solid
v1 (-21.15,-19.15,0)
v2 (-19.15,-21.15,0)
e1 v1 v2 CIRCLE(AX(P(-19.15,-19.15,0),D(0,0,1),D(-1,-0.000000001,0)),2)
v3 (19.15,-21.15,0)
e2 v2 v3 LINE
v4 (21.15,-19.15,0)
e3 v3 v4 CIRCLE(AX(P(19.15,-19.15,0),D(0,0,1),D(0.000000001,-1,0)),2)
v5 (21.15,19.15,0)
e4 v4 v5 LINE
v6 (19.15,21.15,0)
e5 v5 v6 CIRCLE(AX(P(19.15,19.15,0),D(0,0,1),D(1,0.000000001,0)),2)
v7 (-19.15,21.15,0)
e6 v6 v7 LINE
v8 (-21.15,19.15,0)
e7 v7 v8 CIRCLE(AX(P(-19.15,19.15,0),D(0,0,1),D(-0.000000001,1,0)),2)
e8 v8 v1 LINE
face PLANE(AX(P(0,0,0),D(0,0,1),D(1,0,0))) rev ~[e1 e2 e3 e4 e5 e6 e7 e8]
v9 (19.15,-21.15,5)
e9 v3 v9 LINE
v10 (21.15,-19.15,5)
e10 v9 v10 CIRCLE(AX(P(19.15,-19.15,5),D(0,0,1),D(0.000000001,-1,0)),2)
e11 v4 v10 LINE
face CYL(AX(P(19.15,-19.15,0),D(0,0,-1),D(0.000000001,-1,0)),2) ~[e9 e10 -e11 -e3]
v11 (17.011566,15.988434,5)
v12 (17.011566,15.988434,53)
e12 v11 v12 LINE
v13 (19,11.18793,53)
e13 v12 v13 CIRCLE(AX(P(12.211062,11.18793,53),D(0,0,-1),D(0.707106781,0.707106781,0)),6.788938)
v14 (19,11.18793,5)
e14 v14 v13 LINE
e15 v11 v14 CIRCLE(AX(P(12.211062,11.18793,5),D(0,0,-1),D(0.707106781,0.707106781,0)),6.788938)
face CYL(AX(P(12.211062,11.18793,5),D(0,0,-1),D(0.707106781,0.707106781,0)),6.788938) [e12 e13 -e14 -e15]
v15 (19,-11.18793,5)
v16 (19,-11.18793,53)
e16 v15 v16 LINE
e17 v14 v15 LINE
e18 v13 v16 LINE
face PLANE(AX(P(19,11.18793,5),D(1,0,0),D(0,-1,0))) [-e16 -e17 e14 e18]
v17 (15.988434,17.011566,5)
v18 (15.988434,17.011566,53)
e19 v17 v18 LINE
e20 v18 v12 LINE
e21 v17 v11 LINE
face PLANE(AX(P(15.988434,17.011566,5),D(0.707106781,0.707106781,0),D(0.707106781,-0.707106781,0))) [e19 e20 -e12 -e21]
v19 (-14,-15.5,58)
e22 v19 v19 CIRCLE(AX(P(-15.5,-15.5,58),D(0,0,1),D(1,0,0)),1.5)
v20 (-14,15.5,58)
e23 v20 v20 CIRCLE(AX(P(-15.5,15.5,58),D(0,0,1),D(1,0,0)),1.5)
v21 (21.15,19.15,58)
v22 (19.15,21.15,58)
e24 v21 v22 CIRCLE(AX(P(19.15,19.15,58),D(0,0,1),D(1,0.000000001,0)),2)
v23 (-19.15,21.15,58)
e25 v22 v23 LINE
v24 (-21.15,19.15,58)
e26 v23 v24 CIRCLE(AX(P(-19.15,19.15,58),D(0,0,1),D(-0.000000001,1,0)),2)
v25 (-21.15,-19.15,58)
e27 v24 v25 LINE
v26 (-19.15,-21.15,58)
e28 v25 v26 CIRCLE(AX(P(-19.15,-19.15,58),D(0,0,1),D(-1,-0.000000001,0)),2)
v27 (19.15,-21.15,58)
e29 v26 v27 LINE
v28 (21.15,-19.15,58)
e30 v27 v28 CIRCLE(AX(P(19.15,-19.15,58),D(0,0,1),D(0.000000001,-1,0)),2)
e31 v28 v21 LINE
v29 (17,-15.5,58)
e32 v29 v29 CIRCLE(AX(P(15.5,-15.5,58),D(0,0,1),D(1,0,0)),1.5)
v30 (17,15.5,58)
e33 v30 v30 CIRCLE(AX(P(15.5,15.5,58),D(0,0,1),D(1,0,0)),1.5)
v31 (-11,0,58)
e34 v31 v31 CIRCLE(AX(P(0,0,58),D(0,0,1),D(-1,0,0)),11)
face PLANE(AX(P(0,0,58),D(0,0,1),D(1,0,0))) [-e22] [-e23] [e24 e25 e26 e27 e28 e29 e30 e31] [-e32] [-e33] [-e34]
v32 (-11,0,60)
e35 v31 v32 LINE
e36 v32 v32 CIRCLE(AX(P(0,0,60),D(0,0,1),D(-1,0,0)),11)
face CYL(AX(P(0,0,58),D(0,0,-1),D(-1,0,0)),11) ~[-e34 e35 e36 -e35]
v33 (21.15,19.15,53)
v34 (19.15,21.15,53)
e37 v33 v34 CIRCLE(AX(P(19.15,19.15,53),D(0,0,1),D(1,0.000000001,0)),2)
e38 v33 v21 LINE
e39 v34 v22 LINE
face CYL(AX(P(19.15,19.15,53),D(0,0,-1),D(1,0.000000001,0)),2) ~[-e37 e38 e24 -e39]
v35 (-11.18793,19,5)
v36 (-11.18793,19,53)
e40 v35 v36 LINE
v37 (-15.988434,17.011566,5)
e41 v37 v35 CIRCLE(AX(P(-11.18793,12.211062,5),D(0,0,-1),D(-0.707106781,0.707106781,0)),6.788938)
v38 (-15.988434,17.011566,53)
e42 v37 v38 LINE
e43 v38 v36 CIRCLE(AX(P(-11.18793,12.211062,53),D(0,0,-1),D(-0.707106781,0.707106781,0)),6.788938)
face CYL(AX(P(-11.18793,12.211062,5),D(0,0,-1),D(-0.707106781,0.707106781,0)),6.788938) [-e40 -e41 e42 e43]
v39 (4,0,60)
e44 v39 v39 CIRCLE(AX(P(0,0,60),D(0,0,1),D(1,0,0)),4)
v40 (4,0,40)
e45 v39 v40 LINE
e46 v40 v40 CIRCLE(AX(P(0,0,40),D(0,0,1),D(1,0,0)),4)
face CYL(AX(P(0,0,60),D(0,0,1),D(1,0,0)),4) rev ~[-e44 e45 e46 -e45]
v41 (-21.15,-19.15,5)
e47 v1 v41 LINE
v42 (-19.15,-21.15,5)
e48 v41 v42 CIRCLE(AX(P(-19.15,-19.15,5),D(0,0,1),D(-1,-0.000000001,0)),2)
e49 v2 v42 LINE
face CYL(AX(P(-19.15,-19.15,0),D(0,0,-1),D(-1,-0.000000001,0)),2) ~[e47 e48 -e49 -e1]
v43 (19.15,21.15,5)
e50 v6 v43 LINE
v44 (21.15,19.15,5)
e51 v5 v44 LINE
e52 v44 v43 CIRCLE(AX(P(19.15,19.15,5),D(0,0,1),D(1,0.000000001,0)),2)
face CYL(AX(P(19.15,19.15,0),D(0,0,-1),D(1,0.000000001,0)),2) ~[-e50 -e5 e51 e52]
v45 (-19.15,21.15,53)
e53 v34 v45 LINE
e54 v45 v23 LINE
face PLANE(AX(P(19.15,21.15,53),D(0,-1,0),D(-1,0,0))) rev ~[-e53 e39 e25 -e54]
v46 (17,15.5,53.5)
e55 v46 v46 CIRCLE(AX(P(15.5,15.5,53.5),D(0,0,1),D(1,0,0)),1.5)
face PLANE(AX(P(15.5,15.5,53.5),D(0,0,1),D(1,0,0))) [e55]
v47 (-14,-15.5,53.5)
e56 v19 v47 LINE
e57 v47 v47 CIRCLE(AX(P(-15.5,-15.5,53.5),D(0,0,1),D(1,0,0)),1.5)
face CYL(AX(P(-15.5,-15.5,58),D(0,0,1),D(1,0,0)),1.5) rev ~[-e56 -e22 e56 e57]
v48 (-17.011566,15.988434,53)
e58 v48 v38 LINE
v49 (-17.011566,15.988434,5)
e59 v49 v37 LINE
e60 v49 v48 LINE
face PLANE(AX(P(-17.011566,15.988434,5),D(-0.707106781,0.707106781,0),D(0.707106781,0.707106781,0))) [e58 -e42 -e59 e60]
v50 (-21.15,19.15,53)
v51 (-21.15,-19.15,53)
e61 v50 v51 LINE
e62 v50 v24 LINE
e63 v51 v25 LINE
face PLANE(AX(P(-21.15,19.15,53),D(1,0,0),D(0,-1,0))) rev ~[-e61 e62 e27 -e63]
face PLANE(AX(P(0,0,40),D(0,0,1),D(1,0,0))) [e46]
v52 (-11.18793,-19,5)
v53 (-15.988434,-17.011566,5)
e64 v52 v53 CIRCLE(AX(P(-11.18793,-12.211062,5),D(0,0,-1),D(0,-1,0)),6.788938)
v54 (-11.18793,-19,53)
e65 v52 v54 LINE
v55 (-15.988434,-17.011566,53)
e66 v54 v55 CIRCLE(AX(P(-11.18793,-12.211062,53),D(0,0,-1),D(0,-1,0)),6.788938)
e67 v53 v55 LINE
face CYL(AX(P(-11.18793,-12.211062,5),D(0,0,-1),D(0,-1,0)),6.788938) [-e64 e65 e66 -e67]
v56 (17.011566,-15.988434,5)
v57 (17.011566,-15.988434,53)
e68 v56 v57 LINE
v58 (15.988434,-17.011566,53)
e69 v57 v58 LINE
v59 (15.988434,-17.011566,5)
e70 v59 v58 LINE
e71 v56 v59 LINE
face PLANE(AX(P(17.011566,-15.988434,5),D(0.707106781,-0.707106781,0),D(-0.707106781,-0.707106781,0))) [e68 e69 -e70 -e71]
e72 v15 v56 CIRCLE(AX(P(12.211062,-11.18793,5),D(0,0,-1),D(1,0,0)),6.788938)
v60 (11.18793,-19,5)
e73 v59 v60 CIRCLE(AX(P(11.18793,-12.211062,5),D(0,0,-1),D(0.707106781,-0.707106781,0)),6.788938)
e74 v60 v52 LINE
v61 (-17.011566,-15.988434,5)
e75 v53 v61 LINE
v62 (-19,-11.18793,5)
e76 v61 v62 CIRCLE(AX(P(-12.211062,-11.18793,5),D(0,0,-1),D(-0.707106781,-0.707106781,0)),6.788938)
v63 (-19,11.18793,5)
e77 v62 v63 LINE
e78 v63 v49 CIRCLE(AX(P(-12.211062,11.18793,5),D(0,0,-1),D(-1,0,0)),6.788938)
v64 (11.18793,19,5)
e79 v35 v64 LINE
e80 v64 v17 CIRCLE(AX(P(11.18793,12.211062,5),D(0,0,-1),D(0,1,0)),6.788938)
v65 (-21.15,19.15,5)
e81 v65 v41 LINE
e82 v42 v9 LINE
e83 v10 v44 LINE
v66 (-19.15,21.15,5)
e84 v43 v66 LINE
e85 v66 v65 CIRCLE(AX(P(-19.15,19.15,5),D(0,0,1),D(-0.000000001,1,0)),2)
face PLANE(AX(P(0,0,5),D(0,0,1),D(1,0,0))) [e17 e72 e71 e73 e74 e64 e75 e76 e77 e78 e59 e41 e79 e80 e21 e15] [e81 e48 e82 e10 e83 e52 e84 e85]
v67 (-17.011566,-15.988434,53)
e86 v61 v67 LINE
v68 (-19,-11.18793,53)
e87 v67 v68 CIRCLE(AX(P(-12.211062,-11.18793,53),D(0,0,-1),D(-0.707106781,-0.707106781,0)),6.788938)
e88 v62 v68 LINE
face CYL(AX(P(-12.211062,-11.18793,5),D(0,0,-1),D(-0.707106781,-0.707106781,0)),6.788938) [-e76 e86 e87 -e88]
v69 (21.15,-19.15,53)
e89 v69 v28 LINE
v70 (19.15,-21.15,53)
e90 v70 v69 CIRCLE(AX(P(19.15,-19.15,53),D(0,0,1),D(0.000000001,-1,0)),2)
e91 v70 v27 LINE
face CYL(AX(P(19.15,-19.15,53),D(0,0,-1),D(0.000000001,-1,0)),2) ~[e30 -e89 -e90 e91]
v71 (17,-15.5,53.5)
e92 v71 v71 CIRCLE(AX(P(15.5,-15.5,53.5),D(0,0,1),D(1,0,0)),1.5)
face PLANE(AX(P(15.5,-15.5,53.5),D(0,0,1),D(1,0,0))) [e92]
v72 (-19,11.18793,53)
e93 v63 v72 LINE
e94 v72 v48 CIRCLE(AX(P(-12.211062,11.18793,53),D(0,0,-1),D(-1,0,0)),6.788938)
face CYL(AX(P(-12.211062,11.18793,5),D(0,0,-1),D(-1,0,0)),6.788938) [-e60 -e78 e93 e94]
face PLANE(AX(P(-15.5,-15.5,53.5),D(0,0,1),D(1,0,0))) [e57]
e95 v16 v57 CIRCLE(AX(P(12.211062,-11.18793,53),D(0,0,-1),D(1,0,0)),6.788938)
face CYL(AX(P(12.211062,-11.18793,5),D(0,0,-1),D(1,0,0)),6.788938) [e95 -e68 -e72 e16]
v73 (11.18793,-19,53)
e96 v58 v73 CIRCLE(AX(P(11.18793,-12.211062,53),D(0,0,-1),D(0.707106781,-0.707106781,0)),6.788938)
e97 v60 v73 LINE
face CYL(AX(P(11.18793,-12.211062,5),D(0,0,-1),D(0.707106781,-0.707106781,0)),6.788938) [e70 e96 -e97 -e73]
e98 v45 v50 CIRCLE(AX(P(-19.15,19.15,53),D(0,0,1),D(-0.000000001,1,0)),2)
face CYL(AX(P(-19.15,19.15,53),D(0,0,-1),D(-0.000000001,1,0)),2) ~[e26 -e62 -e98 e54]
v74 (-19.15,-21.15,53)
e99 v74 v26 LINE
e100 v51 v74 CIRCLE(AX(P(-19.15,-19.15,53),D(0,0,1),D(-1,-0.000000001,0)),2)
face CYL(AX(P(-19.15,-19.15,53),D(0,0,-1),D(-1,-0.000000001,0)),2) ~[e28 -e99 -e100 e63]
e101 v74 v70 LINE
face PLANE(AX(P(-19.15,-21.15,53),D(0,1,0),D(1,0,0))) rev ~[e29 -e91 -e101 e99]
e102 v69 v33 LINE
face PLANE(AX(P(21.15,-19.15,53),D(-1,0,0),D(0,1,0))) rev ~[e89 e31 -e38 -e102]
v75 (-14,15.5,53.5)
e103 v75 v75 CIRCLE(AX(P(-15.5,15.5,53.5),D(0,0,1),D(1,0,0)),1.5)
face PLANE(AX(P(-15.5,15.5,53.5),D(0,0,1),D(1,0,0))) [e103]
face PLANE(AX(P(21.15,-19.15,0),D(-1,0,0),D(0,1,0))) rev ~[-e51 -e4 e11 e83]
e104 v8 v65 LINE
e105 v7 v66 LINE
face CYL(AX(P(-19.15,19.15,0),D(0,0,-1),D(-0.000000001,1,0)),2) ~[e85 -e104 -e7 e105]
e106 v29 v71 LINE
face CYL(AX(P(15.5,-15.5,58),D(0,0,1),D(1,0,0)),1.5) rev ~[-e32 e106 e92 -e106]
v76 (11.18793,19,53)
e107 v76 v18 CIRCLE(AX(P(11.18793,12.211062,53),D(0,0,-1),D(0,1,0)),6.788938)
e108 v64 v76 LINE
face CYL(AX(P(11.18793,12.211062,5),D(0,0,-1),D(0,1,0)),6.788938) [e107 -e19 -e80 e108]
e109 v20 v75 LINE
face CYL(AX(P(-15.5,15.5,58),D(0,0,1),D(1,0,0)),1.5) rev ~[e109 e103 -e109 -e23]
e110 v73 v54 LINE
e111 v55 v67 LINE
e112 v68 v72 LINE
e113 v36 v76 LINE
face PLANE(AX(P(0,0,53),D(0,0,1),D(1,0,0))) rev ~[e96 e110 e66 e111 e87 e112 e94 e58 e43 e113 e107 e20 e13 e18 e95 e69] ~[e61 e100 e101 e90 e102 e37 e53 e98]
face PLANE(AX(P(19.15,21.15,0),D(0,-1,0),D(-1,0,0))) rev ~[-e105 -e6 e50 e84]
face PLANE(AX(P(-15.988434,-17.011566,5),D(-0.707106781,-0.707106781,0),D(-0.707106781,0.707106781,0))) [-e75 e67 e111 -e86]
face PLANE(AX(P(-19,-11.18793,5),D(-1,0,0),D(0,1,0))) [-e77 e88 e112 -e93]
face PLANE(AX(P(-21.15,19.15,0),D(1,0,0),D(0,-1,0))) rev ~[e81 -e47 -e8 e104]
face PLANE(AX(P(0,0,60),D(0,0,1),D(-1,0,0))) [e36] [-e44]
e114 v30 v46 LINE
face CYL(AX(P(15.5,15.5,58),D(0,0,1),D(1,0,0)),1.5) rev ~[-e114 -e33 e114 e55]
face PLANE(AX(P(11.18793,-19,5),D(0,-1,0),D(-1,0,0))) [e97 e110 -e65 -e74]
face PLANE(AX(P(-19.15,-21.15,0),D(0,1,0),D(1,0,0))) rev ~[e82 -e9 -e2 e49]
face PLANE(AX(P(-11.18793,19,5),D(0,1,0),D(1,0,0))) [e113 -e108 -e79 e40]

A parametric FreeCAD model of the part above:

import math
import FreeCAD as App
import Part
import Sketcher
from FreeCAD import Vector
Q = App.Units.Quantity

doc = App.newDocument("Part")
body = doc.addObject("PartDesign::Body", "Body")

sketch1 = body.newObject("Sketcher::SketchObject", "Sketch")
sketch1.AttachmentSupport = (doc.getObject("XY_Plane"), [""])
sketch1.MapMode = "FlatFace"
sketch1.addGeometry([
    Part.LineSegment(Vector(-19.1, -21.1, 0), Vector(19.1, -21.1, 0)),
    Part.ArcOfCircle(Part.Circle(Vector(19.1, -19.1, 0), Vector(0, 0, 1), 2), math.radians(-90), math.radians(0)),
    Part.LineSegment(Vector(21.1, -19.1, 0), Vector(21.1, 19.1, 0)),
    Part.ArcOfCircle(Part.Circle(Vector(19.1, 19.1, 0), Vector(0, 0, 1), 2), math.radians(0), math.radians(90)),
    Part.LineSegment(Vector(19.1, 21.1, 0), Vector(-19.1, 21.1, 0)),
    Part.ArcOfCircle(Part.Circle(Vector(-19.1, 19.1, 0), Vector(0, 0, 1), 2), math.radians(90), math.radians(180)),
    Part.LineSegment(Vector(-21.1, 19.1, 0), Vector(-21.1, -19.1, 0)),
    Part.ArcOfCircle(Part.Circle(Vector(-19.1, -19.1, 0), Vector(0, 0, 1), 2), math.radians(-180), math.radians(-90)),
], False)
sketch1.addConstraint([
    Sketcher.Constraint("Tangent", 0, 2, 1, 1),
    Sketcher.Constraint("Tangent", 1, 2, 2, 1),
    Sketcher.Constraint("Tangent", 2, 2, 3, 1),
    Sketcher.Constraint("Tangent", 3, 2, 4, 1),
    Sketcher.Constraint("Tangent", 4, 2, 5, 1),
    Sketcher.Constraint("Tangent", 5, 2, 6, 1),
    Sketcher.Constraint("Tangent", 6, 2, 7, 1),
    Sketcher.Constraint("Tangent", 7, 2, 0, 1),
    Sketcher.Constraint("Horizontal", 0),
    Sketcher.Constraint("Vertical", 2),
    Sketcher.Constraint("Horizontal", 4),
    Sketcher.Constraint("Vertical", 6),
    Sketcher.Constraint("Equal", 1, 3),
    Sketcher.Constraint("Equal", 3, 5),
    Sketcher.Constraint("Equal", 5, 7),
    Sketcher.Constraint("Symmetric", 1, 3, 5, 3, -1, 1),
    Sketcher.Constraint("Equal", 4, 2),
    Sketcher.Constraint("Radius", 1, Q("2 mm")),
    Sketcher.Constraint("DistanceX", 0, 1, 0, 2, Q("38.3 mm")),
])
pad1 = body.newObject("PartDesign::Pad", "Pad")
pad1.Profile = sketch1
pad1.Length = 5

sketch2 = body.newObject("Sketcher::SketchObject", "Sketch001")
sketch2.AttachmentSupport = (doc.getObject("XY_Plane"), [""])
sketch2.MapMode = "FlatFace"
sketch2.AttachmentOffset = App.Placement(Vector(0, 0, 5), App.Rotation())
sketch2.addGeometry([
    Part.LineSegment(Vector(-16, 17, 0), Vector(-17, 16, 0)),
    Part.ArcOfCircle(Part.Circle(Vector(-12.2, 11.2, 0), Vector(0, 0, 1), 6.8), math.radians(135), math.radians(180)),
    Part.LineSegment(Vector(-19, 11.2, 0), Vector(-19, -11.2, 0)),
    Part.ArcOfCircle(Part.Circle(Vector(-12.2, -11.2, 0), Vector(0, 0, 1), 6.8), math.radians(-180), math.radians(-135)),
    Part.LineSegment(Vector(-17, -16, 0), Vector(-16, -17, 0)),
    Part.ArcOfCircle(Part.Circle(Vector(-11.2, -12.2, 0), Vector(0, 0, 1), 6.8), math.radians(-135), math.radians(-90)),
    Part.LineSegment(Vector(-11.2, -19, 0), Vector(11.2, -19, 0)),
    Part.ArcOfCircle(Part.Circle(Vector(11.2, -12.2, 0), Vector(0, 0, 1), 6.8), math.radians(-90), math.radians(-45)),
    Part.LineSegment(Vector(16, -17, 0), Vector(17, -16, 0)),
    Part.ArcOfCircle(Part.Circle(Vector(12.2, -11.2, 0), Vector(0, 0, 1), 6.8), math.radians(-45), math.radians(0)),
    Part.LineSegment(Vector(19, -11.2, 0), Vector(19, 11.2, 0)),
    Part.ArcOfCircle(Part.Circle(Vector(12.2, 11.2, 0), Vector(0, 0, 1), 6.8), math.radians(0), math.radians(45)),
    Part.LineSegment(Vector(17, 16, 0), Vector(16, 17, 0)),
    Part.ArcOfCircle(Part.Circle(Vector(11.2, 12.2, 0), Vector(0, 0, 1), 6.8), math.radians(45), math.radians(90)),
    Part.LineSegment(Vector(11.2, 19, 0), Vector(-11.2, 19, 0)),
    Part.ArcOfCircle(Part.Circle(Vector(-11.2, 12.2, 0), Vector(0, 0, 1), 6.8), math.radians(90), math.radians(135)),
], False)
sketch2.addConstraint([
    Sketcher.Constraint("Tangent", 0, 2, 1, 1),
    Sketcher.Constraint("Tangent", 1, 2, 2, 1),
    Sketcher.Constraint("Tangent", 2, 2, 3, 1),
    Sketcher.Constraint("Tangent", 3, 2, 4, 1),
    Sketcher.Constraint("Tangent", 4, 2, 5, 1),
    Sketcher.Constraint("Tangent", 5, 2, 6, 1),
    Sketcher.Constraint("Tangent", 6, 2, 7, 1),
    Sketcher.Constraint("Tangent", 7, 2, 8, 1),
    Sketcher.Constraint("Tangent", 8, 2, 9, 1),
    Sketcher.Constraint("Tangent", 9, 2, 10, 1),
    Sketcher.Constraint("Tangent", 10, 2, 11, 1),
    Sketcher.Constraint("Tangent", 11, 2, 12, 1),
    Sketcher.Constraint("Tangent", 12, 2, 13, 1),
    Sketcher.Constraint("Tangent", 13, 2, 14, 1),
    Sketcher.Constraint("Tangent", 14, 2, 15, 1),
    Sketcher.Constraint("Tangent", 15, 2, 0, 1),
    Sketcher.Constraint("Vertical", 2),
    Sketcher.Constraint("Horizontal", 6),
    Sketcher.Constraint("Vertical", 10),
    Sketcher.Constraint("Horizontal", 14),
    Sketcher.Constraint("Equal", 1, 3),
    Sketcher.Constraint("Equal", 3, 5),
    Sketcher.Constraint("Equal", 5, 7),
    Sketcher.Constraint("Equal", 7, 9),
    Sketcher.Constraint("Equal", 9, 11),
    Sketcher.Constraint("Equal", 11, 13),
    Sketcher.Constraint("Equal", 13, 15),
    Sketcher.Constraint("Symmetric", 1, 3, 9, 3, -1, 1),
    Sketcher.Constraint("Symmetric", 5, 3, 13, 3, -1, 1),
    Sketcher.Constraint("Symmetric", 4, 2, 7, 2, -2),
    Sketcher.Constraint("Symmetric", 0, 2, 11, 2, -2),
    Sketcher.Constraint("Perpendicular", 0, 4),
    Sketcher.Constraint("Equal", 14, 2),
    Sketcher.Constraint("DistanceX", 1, 2, -1, 1, Q("19 mm")),
    Sketcher.Constraint("Radius", 1, Q("6.788938 mm")),
    Sketcher.Constraint("DistanceX", 6, 1, 6, 2, Q("22.37586 mm")),
])
pad2 = body.newObject("PartDesign::Pad", "Pad001")
pad2.Profile = sketch2
pad2.Length = 48

sketch3 = body.newObject("Sketcher::SketchObject", "Sketch002")
sketch3.AttachmentSupport = (doc.getObject("XY_Plane"), [""])
sketch3.MapMode = "FlatFace"
sketch3.AttachmentOffset = App.Placement(Vector(0, 0, 53), App.Rotation())
sketch3.addGeometry([
    Part.LineSegment(Vector(-19.1, -21.1, 0), Vector(19.1, -21.1, 0)),
    Part.ArcOfCircle(Part.Circle(Vector(19.1, -19.1, 0), Vector(0, 0, 1), 2), math.radians(-90), math.radians(0)),
    Part.LineSegment(Vector(21.1, -19.1, 0), Vector(21.1, 19.1, 0)),
    Part.ArcOfCircle(Part.Circle(Vector(19.1, 19.1, 0), Vector(0, 0, 1), 2), math.radians(0), math.radians(90)),
    Part.LineSegment(Vector(19.1, 21.1, 0), Vector(-19.1, 21.1, 0)),
    Part.ArcOfCircle(Part.Circle(Vector(-19.1, 19.1, 0), Vector(0, 0, 1), 2), math.radians(90), math.radians(180)),
    Part.LineSegment(Vector(-21.1, 19.1, 0), Vector(-21.1, -19.1, 0)),
    Part.ArcOfCircle(Part.Circle(Vector(-19.1, -19.1, 0), Vector(0, 0, 1), 2), math.radians(-180), math.radians(-90)),
], False)
sketch3.addConstraint([
    Sketcher.Constraint("Tangent", 0, 2, 1, 1),
    Sketcher.Constraint("Tangent", 1, 2, 2, 1),
    Sketcher.Constraint("Tangent", 2, 2, 3, 1),
    Sketcher.Constraint("Tangent", 3, 2, 4, 1),
    Sketcher.Constraint("Tangent", 4, 2, 5, 1),
    Sketcher.Constraint("Tangent", 5, 2, 6, 1),
    Sketcher.Constraint("Tangent", 6, 2, 7, 1),
    Sketcher.Constraint("Tangent", 7, 2, 0, 1),
    Sketcher.Constraint("Horizontal", 0),
    Sketcher.Constraint("Vertical", 2),
    Sketcher.Constraint("Horizontal", 4),
    Sketcher.Constraint("Vertical", 6),
    Sketcher.Constraint("Equal", 1, 3),
    Sketcher.Constraint("Equal", 3, 5),
    Sketcher.Constraint("Equal", 5, 7),
    Sketcher.Constraint("Symmetric", 1, 3, 5, 3, -1, 1),
    Sketcher.Constraint("Equal", 4, 2),
    Sketcher.Constraint("Radius", 1, Q("2 mm")),
    Sketcher.Constraint("DistanceX", 0, 1, 0, 2, Q("38.3 mm")),
])
pad3 = body.newObject("PartDesign::Pad", "Pad002")
pad3.Profile = sketch3
pad3.Length = 5

sketch4 = body.newObject("Sketcher::SketchObject", "Sketch003")
sketch4.AttachmentSupport = (doc.getObject("XY_Plane"), [""])
sketch4.MapMode = "FlatFace"
sketch4.AttachmentOffset = App.Placement(Vector(0, 0, 58), App.Rotation())
sketch4.addGeometry([
    Part.Circle(Vector(15.5, 15.5, 0), Vector(0, 0, 1), 1.5),
    Part.Circle(Vector(15.5, -15.5, 0), Vector(0, 0, 1), 1.5),
    Part.Circle(Vector(-15.5, -15.5, 0), Vector(0, 0, 1), 1.5),
    Part.Circle(Vector(-15.5, 15.5, 0), Vector(0, 0, 1), 1.5),
], False)
sketch4.addConstraint([
    Sketcher.Constraint("Equal", 0, 1),
    Sketcher.Constraint("Equal", 1, 2),
    Sketcher.Constraint("Equal", 2, 3),
    Sketcher.Constraint("Symmetric", 0, 3, 2, 3, -1, 1),
    Sketcher.Constraint("Symmetric", 1, 3, 3, 3, -1, 1),
    Sketcher.Constraint("Symmetric", 1, 3, 2, 3, -2),
    Sketcher.Constraint("Diameter", 0, Q("3 mm")),
    Sketcher.Constraint("DistanceY", 1, 3, 0, 3, Q("31 mm")),
    Sketcher.Constraint("DistanceX", 2, 3, 1, 3, Q("31 mm")),
])
pocket1 = body.newObject("PartDesign::Pocket", "Pocket")
pocket1.Profile = sketch4
pocket1.Length = 4.5

sketch5 = body.newObject("Sketcher::SketchObject", "Sketch004")
sketch5.AttachmentSupport = (doc.getObject("XY_Plane"), [""])
sketch5.MapMode = "FlatFace"
sketch5.AttachmentOffset = App.Placement(Vector(0, 0, 58), App.Rotation())
sketch5.addGeometry(Part.Circle(Vector(0, 0, 0), Vector(0, 0, 1), 11), False)
sketch5.addConstraint([
    Sketcher.Constraint("Coincident", 0, 3, -1, 1),
    Sketcher.Constraint("Diameter", 0, Q("22 mm")),
])
pad4 = body.newObject("PartDesign::Pad", "Pad003")
pad4.Profile = sketch5
pad4.Length = 2

sketch6 = body.newObject("Sketcher::SketchObject", "Sketch005")
sketch6.AttachmentSupport = (doc.getObject("XY_Plane"), [""])
sketch6.MapMode = "FlatFace"
sketch6.AttachmentOffset = App.Placement(Vector(0, 0, 60), App.Rotation())
sketch6.addGeometry(Part.Circle(Vector(0, 0, 0), Vector(0, 0, 1), 4), False)
sketch6.addConstraint([
    Sketcher.Constraint("Coincident", 0, 3, -1, 1),
    Sketcher.Constraint("Diameter", 0, Q("8 mm")),
])
pocket2 = body.newObject("PartDesign::Pocket", "Pocket001")
pocket2.Profile = sketch6
pocket2.Length = 20

doc.recompute()
